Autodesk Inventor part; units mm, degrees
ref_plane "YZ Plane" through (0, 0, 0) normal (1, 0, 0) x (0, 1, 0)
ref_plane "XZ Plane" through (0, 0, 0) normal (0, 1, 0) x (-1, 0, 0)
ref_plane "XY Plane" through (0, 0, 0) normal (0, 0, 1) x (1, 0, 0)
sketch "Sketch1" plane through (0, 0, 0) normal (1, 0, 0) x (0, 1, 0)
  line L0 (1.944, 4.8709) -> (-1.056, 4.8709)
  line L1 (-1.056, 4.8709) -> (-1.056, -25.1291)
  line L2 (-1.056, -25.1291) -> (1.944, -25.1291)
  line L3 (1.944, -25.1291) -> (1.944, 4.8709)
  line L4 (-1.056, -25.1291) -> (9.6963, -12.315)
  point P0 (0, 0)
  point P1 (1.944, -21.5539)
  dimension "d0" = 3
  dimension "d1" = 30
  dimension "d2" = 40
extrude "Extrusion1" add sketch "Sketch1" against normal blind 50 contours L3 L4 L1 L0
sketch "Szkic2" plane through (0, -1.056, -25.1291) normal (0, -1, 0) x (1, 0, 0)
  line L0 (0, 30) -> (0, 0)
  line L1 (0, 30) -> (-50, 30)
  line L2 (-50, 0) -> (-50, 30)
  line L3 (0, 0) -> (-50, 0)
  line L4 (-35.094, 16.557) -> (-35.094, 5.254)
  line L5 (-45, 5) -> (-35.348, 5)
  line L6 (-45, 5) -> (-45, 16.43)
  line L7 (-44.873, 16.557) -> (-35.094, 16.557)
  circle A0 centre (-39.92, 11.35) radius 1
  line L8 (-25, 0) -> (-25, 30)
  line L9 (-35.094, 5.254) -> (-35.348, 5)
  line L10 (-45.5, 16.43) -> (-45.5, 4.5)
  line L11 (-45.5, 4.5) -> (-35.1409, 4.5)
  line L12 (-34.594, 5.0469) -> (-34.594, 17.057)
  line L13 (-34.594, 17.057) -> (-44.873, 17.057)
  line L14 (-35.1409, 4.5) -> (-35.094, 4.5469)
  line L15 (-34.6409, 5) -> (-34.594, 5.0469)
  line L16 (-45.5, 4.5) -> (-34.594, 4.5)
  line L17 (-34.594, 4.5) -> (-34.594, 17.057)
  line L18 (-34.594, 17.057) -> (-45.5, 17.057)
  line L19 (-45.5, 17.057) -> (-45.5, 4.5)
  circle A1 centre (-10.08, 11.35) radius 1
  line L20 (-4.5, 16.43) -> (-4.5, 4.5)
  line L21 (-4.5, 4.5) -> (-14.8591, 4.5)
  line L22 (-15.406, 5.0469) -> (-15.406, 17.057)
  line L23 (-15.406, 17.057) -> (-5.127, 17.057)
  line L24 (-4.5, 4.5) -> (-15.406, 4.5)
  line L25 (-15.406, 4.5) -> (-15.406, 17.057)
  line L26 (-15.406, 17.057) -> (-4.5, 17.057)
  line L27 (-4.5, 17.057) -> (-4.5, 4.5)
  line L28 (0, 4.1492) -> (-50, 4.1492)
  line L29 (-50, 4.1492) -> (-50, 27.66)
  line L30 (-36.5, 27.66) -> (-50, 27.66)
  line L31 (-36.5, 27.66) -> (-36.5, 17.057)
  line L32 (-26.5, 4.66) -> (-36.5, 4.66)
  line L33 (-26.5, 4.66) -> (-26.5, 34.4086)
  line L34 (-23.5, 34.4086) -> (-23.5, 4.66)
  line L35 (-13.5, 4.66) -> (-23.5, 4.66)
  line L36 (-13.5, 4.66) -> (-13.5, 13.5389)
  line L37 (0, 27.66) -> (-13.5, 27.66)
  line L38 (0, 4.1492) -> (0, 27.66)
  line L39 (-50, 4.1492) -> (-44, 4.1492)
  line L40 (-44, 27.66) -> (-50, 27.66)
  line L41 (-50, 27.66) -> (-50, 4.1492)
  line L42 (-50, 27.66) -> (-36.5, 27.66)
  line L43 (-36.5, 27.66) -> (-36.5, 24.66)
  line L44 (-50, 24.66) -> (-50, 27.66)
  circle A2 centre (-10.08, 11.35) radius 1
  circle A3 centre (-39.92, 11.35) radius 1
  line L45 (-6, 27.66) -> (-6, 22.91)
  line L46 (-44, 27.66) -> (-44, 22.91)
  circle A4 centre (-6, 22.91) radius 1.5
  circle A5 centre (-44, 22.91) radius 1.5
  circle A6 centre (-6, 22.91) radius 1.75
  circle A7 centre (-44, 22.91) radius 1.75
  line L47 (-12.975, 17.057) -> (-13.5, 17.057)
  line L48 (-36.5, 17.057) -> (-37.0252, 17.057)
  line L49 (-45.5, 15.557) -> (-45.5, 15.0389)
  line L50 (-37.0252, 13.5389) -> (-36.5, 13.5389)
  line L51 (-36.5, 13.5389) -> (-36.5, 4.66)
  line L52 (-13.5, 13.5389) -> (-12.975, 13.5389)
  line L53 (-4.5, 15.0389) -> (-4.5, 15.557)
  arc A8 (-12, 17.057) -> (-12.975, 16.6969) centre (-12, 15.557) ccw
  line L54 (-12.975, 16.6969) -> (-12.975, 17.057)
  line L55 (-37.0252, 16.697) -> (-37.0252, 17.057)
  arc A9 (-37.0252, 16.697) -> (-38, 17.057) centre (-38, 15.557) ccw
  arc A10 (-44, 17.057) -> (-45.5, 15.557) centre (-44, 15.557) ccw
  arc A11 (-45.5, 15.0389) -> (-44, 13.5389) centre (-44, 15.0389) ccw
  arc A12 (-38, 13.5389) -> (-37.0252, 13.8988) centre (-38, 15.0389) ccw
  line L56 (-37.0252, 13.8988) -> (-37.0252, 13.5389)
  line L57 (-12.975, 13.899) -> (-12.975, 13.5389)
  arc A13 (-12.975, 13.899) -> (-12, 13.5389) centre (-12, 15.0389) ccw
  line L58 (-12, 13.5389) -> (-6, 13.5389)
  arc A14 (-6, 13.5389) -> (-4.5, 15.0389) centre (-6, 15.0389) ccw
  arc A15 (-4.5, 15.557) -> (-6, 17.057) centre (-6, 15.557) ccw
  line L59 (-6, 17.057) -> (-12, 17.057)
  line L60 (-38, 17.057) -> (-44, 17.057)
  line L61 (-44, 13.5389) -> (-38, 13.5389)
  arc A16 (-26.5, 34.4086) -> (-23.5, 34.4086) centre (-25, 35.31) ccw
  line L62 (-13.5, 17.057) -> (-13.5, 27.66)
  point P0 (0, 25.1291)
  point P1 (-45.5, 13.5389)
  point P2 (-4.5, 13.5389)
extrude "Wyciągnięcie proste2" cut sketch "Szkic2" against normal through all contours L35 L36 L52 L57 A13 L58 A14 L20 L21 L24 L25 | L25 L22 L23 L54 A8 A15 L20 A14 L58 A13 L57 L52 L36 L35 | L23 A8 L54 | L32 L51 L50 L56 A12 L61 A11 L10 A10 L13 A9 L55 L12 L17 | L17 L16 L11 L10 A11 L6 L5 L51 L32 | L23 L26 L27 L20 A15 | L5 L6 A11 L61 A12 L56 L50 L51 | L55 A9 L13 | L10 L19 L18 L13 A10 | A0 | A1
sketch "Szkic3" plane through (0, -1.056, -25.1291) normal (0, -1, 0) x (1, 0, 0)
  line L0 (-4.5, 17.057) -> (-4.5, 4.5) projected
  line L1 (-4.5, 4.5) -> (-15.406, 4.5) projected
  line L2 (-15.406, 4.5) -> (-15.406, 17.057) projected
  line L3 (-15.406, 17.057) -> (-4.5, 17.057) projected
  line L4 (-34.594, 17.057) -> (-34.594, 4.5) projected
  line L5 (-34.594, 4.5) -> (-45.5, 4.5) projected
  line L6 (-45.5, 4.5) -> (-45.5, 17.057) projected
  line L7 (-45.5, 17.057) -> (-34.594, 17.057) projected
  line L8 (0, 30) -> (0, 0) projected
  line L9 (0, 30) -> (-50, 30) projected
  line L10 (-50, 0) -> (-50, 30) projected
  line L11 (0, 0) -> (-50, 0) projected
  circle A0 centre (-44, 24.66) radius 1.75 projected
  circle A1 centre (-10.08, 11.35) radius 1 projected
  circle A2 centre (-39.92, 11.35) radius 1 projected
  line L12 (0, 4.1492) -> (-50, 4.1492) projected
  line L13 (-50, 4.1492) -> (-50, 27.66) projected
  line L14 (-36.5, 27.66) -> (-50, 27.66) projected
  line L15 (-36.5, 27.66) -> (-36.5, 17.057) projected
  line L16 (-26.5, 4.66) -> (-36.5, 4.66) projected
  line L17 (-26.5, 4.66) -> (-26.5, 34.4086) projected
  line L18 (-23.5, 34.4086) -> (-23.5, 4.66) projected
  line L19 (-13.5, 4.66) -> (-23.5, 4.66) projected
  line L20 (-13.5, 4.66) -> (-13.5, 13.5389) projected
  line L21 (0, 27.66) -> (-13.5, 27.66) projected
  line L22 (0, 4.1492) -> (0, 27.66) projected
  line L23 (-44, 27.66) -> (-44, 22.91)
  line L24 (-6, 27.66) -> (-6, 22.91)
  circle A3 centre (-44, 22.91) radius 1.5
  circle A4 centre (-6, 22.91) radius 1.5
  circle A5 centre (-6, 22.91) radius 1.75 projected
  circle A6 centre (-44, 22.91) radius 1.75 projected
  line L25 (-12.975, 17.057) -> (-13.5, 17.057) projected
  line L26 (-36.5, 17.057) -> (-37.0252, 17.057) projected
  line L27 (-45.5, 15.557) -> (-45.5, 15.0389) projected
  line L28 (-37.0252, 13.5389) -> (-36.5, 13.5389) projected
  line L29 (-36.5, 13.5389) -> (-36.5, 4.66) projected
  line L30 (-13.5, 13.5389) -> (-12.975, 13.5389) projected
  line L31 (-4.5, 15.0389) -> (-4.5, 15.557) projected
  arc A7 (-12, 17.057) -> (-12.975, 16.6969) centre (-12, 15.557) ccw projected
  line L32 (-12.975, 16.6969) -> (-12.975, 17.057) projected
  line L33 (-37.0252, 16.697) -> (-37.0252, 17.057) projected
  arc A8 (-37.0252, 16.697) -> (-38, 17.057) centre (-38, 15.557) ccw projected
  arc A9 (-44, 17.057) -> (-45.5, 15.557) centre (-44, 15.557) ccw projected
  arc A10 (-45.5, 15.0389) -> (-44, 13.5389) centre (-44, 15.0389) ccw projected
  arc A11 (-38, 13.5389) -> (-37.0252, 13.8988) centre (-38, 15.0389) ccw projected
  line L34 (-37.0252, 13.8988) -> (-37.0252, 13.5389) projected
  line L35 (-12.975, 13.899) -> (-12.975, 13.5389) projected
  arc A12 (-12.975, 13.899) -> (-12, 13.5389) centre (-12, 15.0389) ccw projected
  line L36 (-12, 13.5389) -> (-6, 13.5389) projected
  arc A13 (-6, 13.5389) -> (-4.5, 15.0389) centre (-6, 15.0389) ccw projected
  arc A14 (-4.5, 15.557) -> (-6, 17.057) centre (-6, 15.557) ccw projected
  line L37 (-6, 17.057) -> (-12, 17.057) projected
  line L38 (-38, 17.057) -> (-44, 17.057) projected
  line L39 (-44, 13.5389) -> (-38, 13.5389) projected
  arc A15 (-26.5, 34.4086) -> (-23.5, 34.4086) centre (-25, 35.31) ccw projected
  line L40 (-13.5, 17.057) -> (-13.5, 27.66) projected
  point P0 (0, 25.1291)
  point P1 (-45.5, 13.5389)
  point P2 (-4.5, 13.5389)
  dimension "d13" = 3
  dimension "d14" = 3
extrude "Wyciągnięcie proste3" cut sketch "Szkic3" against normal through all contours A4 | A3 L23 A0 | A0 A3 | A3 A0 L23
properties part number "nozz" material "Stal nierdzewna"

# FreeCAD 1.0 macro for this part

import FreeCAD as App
import Part
import Sketcher

V = App.Vector
Q = App.Units.Quantity


def add_polygon(sketch, points):
    """Adds a closed chain of lines whose ends are joined by coincident constraints."""
    first, n = sketch.GeometryCount, len(points)
    for a, b in zip(points, points[1:] + points[:1]):
        sketch.addGeometry(Part.LineSegment(App.Vector(*a, 0), App.Vector(*b, 0)), False)
    for i in range(n):
        sketch.addConstraint(Sketcher.Constraint("Coincident", first + i, 2, first + (i + 1) % n, 1))

doc = App.newDocument("Part")
body = doc.addObject("PartDesign::Body", "Body")

sketch1 = body.newObject("Sketcher::SketchObject", "Sketch")
sketch1.AttachmentSupport = (doc.getObject("YZ_Plane"), [""])
sketch1.MapMode = "FlatFace"
add_polygon(sketch1, [(1.9, -21.6), (1.9, 4.9), (-1.1, 4.9), (-1.1, -25.1)])
sketch1.addConstraint([
    Sketcher.Constraint("Vertical", 0),
    Sketcher.Constraint("Horizontal", 1),
    Sketcher.Constraint("Vertical", 2),
    Sketcher.Constraint("DistanceX", 1, 2, 1, 1, Q("3 mm")),
    Sketcher.Constraint("DistanceY", 2, 2, 2, 1, Q("30 mm")),
    Sketcher.Constraint("Angle", 3, Q("50 deg")),
    Sketcher.Constraint("DistanceX", -1, 1, 0, 2, Q("1.944 mm")),
    Sketcher.Constraint("DistanceY", -1, 1, 0, 2, Q("4.871 mm")),
])
pad1 = body.newObject("PartDesign::Pad", "Pad")
pad1.Profile = sketch1
pad1.Length = 50
pad1.Reversed = True

sketch2 = body.newObject("Sketcher::SketchObject", "Sketch001")
sketch2.AttachmentSupport = (doc.getObject("XZ_Plane"), [""])
sketch2.MapMode = "FlatFace"
sketch2.AttachmentOffset = App.Placement(V(0, 0, 1.056), App.Rotation())
add_polygon(sketch2, [(-4, -21), (-4, -8), (-15, -8), (-15, -21)])
add_polygon(sketch2, [(-46, -21), (-35, -21), (-35, -8), (-46, -8)])
sketch2.addConstraint([
    Sketcher.Constraint("Vertical", 0),
    Sketcher.Constraint("Horizontal", 1),
    Sketcher.Constraint("Vertical", 2),
    Sketcher.Constraint("Horizontal", 3),
    Sketcher.Constraint("Horizontal", 4),
    Sketcher.Constraint("Vertical", 5),
    Sketcher.Constraint("Horizontal", 6),
    Sketcher.Constraint("Vertical", 7),
    Sketcher.Constraint("Horizontal", 3, 2, 4, 2),
    Sketcher.Constraint("Horizontal", 1, 2, 5, 2),
    Sketcher.Constraint("Equal", 3, 4),
    Sketcher.Constraint("DistanceX", 6, 2, 0, 2, Q("41 mm")),
    Sketcher.Constraint("DistanceX", 0, 2, -1, 1, Q("4.5 mm")),
    Sketcher.Constraint("DistanceX", 1, 2, 1, 1, Q("10.906 mm")),
    Sketcher.Constraint("DistanceY", 0, 1, 0, 2, Q("12.557 mm")),
    Sketcher.Constraint("DistanceY", 0, 2, -1, 1, Q("8.072 mm")),
])
pocket1 = body.newObject("PartDesign::Pocket", "Pocket")
pocket1.Profile = sketch2
pocket1.Type = "ThroughAll"

sketch3 = body.newObject("Sketcher::SketchObject", "Sketch002")
sketch3.AttachmentSupport = (doc.getObject("XZ_Plane"), [""])
sketch3.MapMode = "FlatFace"
sketch3.AttachmentOffset = App.Placement(V(0, 0, 1.056), App.Rotation())
sketch3.addGeometry([
    Part.Circle(V(-6, -2.2, 0), V(0, 0, 1), 1.5),
    Part.Circle(V(-44, -2.2, 0), V(0, 0, 1), 1.5),
], False)
sketch3.addConstraint([
    Sketcher.Constraint("Equal", 0, 1),
    Sketcher.Constraint("Horizontal", 0, 3, 1, 3),
    Sketcher.Constraint("Diameter", 0, Q("3 mm")),
    Sketcher.Constraint("DistanceX", 0, 3, -1, 1, Q("6 mm")),
    Sketcher.Constraint("DistanceX", 1, 3, -1, 1, Q("44 mm")),
    Sketcher.Constraint("DistanceY", 0, 3, -1, 1, Q("2.219 mm")),
])
pocket2 = body.newObject("PartDesign::Pocket", "Pocket001")
pocket2.Profile = sketch3
pocket2.Type = "ThroughAll"

doc.recompute()
